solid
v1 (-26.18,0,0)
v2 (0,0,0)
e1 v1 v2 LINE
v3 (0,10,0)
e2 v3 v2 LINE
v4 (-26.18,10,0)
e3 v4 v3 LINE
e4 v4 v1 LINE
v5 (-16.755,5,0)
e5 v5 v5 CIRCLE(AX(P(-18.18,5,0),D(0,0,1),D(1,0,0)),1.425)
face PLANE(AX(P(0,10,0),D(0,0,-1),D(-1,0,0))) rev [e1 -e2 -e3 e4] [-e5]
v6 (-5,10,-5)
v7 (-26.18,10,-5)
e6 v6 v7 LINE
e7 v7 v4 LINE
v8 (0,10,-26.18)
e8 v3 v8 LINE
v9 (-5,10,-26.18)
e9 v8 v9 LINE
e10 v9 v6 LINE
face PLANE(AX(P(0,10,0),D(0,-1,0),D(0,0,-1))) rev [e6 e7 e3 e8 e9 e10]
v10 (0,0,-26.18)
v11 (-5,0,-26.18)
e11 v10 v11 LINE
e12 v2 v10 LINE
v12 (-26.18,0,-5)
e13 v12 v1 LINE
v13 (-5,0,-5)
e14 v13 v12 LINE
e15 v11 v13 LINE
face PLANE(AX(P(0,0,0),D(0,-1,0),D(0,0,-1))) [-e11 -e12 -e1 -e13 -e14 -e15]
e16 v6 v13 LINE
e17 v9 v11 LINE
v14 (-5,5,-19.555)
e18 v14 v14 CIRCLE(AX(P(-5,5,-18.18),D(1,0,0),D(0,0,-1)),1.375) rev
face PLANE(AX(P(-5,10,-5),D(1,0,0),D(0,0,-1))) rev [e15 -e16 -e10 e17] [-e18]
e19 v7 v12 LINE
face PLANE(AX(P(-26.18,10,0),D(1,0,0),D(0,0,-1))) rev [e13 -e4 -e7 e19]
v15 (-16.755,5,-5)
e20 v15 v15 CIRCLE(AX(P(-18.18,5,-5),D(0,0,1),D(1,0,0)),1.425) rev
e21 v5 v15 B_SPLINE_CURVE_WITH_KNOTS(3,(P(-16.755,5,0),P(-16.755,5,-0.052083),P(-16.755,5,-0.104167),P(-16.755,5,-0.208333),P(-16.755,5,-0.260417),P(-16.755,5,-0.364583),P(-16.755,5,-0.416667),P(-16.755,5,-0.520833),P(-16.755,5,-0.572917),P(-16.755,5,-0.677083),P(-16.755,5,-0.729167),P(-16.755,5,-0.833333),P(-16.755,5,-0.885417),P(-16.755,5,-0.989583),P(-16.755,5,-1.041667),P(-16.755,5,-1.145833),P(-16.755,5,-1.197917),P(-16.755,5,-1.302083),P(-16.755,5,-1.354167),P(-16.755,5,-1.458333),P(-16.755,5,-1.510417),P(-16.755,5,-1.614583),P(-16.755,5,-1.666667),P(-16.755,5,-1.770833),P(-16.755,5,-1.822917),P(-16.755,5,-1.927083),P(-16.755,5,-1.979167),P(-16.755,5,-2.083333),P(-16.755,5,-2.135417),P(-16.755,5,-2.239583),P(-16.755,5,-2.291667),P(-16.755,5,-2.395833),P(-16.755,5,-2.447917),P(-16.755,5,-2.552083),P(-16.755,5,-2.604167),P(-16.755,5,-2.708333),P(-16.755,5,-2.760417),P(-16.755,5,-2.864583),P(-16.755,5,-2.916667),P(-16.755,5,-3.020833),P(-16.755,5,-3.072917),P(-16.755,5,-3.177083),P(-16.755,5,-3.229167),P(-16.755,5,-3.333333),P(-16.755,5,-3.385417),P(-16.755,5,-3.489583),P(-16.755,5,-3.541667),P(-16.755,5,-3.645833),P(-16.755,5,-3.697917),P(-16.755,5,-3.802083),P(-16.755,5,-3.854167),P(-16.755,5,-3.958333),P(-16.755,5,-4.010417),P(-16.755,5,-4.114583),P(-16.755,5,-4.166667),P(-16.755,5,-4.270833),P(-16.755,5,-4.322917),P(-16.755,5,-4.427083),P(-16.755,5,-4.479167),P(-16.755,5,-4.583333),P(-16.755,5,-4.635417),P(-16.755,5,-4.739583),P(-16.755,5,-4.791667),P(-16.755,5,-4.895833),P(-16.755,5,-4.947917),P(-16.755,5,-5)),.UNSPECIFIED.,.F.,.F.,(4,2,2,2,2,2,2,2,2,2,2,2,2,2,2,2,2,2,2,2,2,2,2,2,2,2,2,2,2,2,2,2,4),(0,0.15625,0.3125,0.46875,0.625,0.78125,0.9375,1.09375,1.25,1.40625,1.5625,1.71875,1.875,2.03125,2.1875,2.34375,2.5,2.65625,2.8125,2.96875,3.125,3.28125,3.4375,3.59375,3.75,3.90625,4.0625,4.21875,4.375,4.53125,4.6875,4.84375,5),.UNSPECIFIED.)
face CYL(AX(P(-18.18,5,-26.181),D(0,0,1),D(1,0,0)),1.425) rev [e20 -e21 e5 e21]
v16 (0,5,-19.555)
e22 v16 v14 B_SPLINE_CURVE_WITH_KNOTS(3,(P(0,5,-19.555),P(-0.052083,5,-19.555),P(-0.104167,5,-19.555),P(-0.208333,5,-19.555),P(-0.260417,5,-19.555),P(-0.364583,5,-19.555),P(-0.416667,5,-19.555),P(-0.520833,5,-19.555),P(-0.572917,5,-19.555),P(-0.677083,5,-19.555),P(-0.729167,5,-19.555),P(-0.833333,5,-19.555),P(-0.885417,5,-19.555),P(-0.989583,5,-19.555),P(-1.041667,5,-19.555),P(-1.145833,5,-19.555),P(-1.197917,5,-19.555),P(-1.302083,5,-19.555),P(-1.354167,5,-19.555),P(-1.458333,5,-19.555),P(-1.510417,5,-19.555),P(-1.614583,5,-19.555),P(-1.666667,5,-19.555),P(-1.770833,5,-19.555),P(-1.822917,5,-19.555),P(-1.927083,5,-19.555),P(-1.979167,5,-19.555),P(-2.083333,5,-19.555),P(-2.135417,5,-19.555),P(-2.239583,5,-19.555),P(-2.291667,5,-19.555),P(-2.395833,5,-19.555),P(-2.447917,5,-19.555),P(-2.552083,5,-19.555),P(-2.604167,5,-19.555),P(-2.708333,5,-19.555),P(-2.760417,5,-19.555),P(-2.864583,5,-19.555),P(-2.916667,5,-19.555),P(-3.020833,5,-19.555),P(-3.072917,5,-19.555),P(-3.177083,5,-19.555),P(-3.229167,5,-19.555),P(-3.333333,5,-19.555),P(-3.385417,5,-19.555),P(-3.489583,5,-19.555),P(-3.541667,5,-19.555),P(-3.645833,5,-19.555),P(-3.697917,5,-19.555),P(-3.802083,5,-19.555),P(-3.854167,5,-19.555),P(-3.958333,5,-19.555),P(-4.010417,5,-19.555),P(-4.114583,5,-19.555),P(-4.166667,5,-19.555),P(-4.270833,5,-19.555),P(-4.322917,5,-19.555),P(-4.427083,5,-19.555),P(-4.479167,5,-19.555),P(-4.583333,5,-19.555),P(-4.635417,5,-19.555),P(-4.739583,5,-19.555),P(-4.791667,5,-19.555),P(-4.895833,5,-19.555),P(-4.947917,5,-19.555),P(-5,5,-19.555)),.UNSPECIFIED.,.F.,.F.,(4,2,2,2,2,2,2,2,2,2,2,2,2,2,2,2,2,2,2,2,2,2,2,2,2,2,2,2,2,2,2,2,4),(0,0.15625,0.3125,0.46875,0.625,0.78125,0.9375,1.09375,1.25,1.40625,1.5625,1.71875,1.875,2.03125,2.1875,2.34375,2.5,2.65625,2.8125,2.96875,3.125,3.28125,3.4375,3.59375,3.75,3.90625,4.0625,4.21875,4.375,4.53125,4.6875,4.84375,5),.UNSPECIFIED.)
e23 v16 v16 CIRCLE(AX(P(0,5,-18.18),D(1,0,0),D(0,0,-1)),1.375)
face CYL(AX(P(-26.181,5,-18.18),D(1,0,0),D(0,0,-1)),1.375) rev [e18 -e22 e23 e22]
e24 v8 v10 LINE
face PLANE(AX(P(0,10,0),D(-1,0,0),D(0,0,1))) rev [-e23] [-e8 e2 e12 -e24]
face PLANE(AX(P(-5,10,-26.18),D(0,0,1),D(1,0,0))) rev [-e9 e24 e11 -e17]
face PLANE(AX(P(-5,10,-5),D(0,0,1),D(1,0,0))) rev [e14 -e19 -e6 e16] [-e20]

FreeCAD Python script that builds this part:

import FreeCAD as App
import Part
import Sketcher
from FreeCAD import Vector

doc = App.newDocument("Part")
body = doc.addObject("PartDesign::Body", "Body")

sketch1 = doc.addObject("Sketcher::SketchObject", "Sketch")
body.addObject(sketch1)
sketch1.AttachmentSupport = (doc.XZ_Plane, [""])
sketch1.MapMode = "FlatFace"
sketch1.addGeometry([
    Part.LineSegment(Vector(-26, 0, 0), Vector(0, 0, 0)),
    Part.LineSegment(Vector(0, 0, 0), Vector(0, -26, 0)),
    Part.LineSegment(Vector(0, -26, 0), Vector(-5, -26, 0)),
    Part.LineSegment(Vector(-5, -26, 0), Vector(-5, -5, 0)),
    Part.LineSegment(Vector(-5, -5, 0), Vector(-26, -5, 0)),
    Part.LineSegment(Vector(-26, -5, 0), Vector(-26, 0, 0)),
], False)
sketch1.addConstraint([
    Sketcher.Constraint("Coincident", 0, 2, 1, 1),
    Sketcher.Constraint("Coincident", 1, 2, 2, 1),
    Sketcher.Constraint("Coincident", 2, 2, 3, 1),
    Sketcher.Constraint("Coincident", 3, 2, 4, 1),
    Sketcher.Constraint("Coincident", 4, 2, 5, 1),
    Sketcher.Constraint("Coincident", 5, 2, 0, 1),
    Sketcher.Constraint("Horizontal", 0),
    Sketcher.Constraint("Vertical", 1),
    Sketcher.Constraint("Horizontal", 2),
    Sketcher.Constraint("Vertical", 3),
    Sketcher.Constraint("Horizontal", 4),
    Sketcher.Constraint("Vertical", 5),
    Sketcher.Constraint("Coincident", 0, 2, -1, 1),
    Sketcher.Constraint("Equal", 0, 1),
    Sketcher.Constraint("Equal", 4, 3),
    Sketcher.Constraint("DistanceX", 2, 2, 2, 1, 5.0),
    Sketcher.Constraint("DistanceX", 0, 1, 0, 2, 26.18),
])
pad1 = doc.addObject("PartDesign::Pad", "Pad")
body.addObject(pad1)
pad1.Profile = sketch1
pad1.Length = 10
pad1.Reversed = True

sketch2 = doc.addObject("Sketcher::SketchObject", "Sketch001")
body.addObject(sketch2)
sketch2.AttachmentSupport = (doc.XY_Plane, [""])
sketch2.MapMode = "FlatFace"
sketch2.addGeometry(Part.Circle(Vector(-18.2, 5, 0), Vector(0, 0, 1), 1.4), False)
sketch2.addConstraint([
    Sketcher.Constraint("Diameter", 0, 2.85),
    Sketcher.Constraint("DistanceY", -1, 1, 0, 3, 5.0),
    Sketcher.Constraint("DistanceX", 0, 3, -1, 1, 18.18),
])
pocket1 = doc.addObject("PartDesign::Pocket", "Pocket")
body.addObject(pocket1)
pocket1.Profile = sketch2
pocket1.Type = "UpToFirst"

sketch3 = doc.addObject("Sketcher::SketchObject", "Sketch002")
body.addObject(sketch3)
sketch3.AttachmentSupport = (doc.YZ_Plane, [""])
sketch3.MapMode = "FlatFace"
sketch3.addGeometry(Part.Circle(Vector(5, -18.2, 0), Vector(0, 0, 1), 1.4), False)
sketch3.addConstraint([
    Sketcher.Constraint("Diameter", 0, 2.75),
    Sketcher.Constraint("DistanceX", -1, 1, 0, 3, 5.0),
    Sketcher.Constraint("DistanceY", 0, 3, -1, 1, 18.18),
])
pocket2 = doc.addObject("PartDesign::Pocket", "Pocket001")
body.addObject(pocket2)
pocket2.Profile = sketch3
pocket2.Type = "UpToFirst"

doc.recompute()
